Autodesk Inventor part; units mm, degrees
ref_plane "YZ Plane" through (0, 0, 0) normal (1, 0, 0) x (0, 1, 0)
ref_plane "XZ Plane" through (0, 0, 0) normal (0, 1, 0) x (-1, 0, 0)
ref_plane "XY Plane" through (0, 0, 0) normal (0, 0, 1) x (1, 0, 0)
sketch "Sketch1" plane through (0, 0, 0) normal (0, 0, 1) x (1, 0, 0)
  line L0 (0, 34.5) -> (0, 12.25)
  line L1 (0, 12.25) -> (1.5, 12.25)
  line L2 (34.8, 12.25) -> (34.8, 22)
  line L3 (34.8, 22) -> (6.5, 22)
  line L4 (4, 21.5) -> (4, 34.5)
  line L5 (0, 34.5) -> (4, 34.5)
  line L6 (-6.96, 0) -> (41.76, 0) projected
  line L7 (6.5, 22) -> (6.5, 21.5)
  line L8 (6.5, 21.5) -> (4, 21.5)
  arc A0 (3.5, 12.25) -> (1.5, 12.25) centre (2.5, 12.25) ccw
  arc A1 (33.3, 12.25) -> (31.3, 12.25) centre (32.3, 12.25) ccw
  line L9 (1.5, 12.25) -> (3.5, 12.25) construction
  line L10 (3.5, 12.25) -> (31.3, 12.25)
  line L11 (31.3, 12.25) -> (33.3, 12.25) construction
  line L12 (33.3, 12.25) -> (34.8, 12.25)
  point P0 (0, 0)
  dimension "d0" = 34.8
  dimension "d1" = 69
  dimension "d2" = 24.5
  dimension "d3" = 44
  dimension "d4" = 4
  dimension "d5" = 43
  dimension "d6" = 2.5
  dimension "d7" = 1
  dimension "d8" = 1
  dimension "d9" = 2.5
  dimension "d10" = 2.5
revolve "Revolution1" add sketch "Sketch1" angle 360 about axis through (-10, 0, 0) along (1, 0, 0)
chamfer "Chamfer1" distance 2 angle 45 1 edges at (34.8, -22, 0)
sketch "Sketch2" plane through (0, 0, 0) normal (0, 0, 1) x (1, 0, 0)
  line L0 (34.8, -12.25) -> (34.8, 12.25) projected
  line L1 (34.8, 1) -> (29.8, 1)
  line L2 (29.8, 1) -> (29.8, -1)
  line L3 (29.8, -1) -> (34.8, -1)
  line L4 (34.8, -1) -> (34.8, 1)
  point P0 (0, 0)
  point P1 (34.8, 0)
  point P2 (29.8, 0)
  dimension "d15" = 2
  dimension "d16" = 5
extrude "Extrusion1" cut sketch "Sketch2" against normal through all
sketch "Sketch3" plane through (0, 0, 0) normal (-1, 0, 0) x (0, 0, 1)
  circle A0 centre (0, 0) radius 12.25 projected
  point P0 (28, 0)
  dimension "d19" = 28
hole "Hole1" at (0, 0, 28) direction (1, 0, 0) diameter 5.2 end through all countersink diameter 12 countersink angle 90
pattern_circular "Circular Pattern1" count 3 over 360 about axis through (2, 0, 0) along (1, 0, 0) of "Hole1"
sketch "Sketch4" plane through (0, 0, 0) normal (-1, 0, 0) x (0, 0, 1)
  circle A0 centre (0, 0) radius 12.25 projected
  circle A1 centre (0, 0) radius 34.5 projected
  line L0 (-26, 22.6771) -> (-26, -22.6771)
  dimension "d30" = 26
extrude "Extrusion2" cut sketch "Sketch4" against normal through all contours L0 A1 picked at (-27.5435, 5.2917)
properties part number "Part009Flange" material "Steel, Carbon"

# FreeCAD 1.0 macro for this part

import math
import FreeCAD as App
import Part
import Sketcher


def edges_at(feature, points):
    """Names of the edges that pass closest to the given points."""
    edges = feature.Shape.Edges
    near = lambda p: min(range(len(edges)), key=lambda i: edges[i].distToShape(Part.Vertex(*p))[0])
    return sorted({f"Edge{near(p) + 1}" for p in points})


def add_polygon(sketch, points):
    """Adds a closed chain of lines whose ends are joined by coincident constraints."""
    first, n = sketch.GeometryCount, len(points)
    for a, b in zip(points, points[1:] + points[:1]):
        sketch.addGeometry(Part.LineSegment(App.Vector(*a, 0), App.Vector(*b, 0)), False)
    for i in range(n):
        sketch.addConstraint(Sketcher.Constraint("Coincident", first + i, 2, first + (i + 1) % n, 1))

doc = App.newDocument("Part")
body = doc.addObject("PartDesign::Body", "Body")

# Sketch on XY plane
sketch1 = body.newObject("Sketcher::SketchObject", "Sketch")
sketch1.AttachmentSupport = (doc.getObject("XY_Plane"), [""])
sketch1.MapMode = "FlatFace"
sketch1.addGeometry([
    Part.LineSegment(App.Vector(4, 34.5, 0), App.Vector(0, 34.5, 0)),  # 0
    Part.LineSegment(App.Vector(0, 34.5, 0), App.Vector(0, 12.2, 0)),  # 1
    Part.LineSegment(App.Vector(0, 12.2, 0), App.Vector(1.5, 12.2, 0)),  # 2
    Part.ArcOfCircle(Part.Circle(App.Vector(2.5, 12.2, 0), App.Vector(0, 0, 1), 1), math.radians(0), math.radians(180)),  # 3
    Part.LineSegment(App.Vector(3.5, 12.2, 0), App.Vector(31.3, 12.2, 0)),  # 4
    Part.ArcOfCircle(Part.Circle(App.Vector(32.3, 12.2, 0), App.Vector(0, 0, 1), 1), math.radians(0), math.radians(180)),  # 5
    Part.LineSegment(App.Vector(33.3, 12.2, 0), App.Vector(34.8, 12.2, 0)),  # 6
    Part.LineSegment(App.Vector(34.8, 12.2, 0), App.Vector(34.8, 22, 0)),  # 7
    Part.LineSegment(App.Vector(34.8, 22, 0), App.Vector(6.5, 22, 0)),  # 8
    Part.LineSegment(App.Vector(6.5, 22, 0), App.Vector(6.5, 21.5, 0)),  # 9
    Part.LineSegment(App.Vector(6.5, 21.5, 0), App.Vector(4, 21.5, 0)),  # 10
    Part.LineSegment(App.Vector(4, 21.5, 0), App.Vector(4, 34.5, 0)),  # 11
], False)
sketch1.addConstraint([
    Sketcher.Constraint("Coincident", 0, 2, 1, 1),
    Sketcher.Constraint("Coincident", 1, 2, 2, 1),
    Sketcher.Constraint("Coincident", 2, 2, 3, 2),
    Sketcher.Constraint("Coincident", 3, 1, 4, 1),
    Sketcher.Constraint("Coincident", 4, 2, 5, 2),
    Sketcher.Constraint("Coincident", 5, 1, 6, 1),
    Sketcher.Constraint("Coincident", 6, 2, 7, 1),
    Sketcher.Constraint("Coincident", 7, 2, 8, 1),
    Sketcher.Constraint("Coincident", 8, 2, 9, 1),
    Sketcher.Constraint("Coincident", 9, 2, 10, 1),
    Sketcher.Constraint("Coincident", 10, 2, 11, 1),
    Sketcher.Constraint("Coincident", 11, 2, 0, 1),
    Sketcher.Constraint("Horizontal", 0),
    Sketcher.Constraint("Vertical", 1),
    Sketcher.Constraint("Horizontal", 2),
    Sketcher.Constraint("Horizontal", 4),
    Sketcher.Constraint("Horizontal", 6),
    Sketcher.Constraint("Vertical", 7),
    Sketcher.Constraint("Horizontal", 8),
    Sketcher.Constraint("Vertical", 9),
    Sketcher.Constraint("Horizontal", 10),
    Sketcher.Constraint("Vertical", 11),
    Sketcher.Constraint("Equal", 3, 5),
    Sketcher.Constraint("PointOnObject", 0, 2, -2),
    Sketcher.Constraint("Horizontal", 3, 3, 5, 3),
    Sketcher.Constraint("Horizontal", 5, 3, 1, 2),
    Sketcher.Constraint("Horizontal", 2, 2, 3, 1),
    Sketcher.Constraint("Horizontal", 4, 2, 5, 1),
    Sketcher.Constraint("Equal", 2, 6),
    Sketcher.Constraint("Radius", 3, 1.0),
    Sketcher.Constraint("DistanceX", 0, 2, 0, 1, 4.0),
    Sketcher.Constraint("DistanceX", 10, 2, 10, 1, 2.5),
    Sketcher.Constraint("DistanceX", 3, 3, 8, 2, 4.0),
    Sketcher.Constraint("DistanceX", -1, 1, 6, 2, 34.8),
    Sketcher.Constraint("DistanceY", 11, 1, 11, 2, 13.0),
    Sketcher.Constraint("DistanceY", 9, 2, 9, 1, 0.5),
    Sketcher.Constraint("DistanceY", -1, 1, 7, 2, 22.0),
    Sketcher.Constraint("DistanceY", 1, 2, 1, 1, 22.25),
])
revolution = body.newObject("PartDesign::Revolution", "Revolution")
revolution.Profile = sketch1
revolution.ReferenceAxis = (sketch1, ["H_Axis"])
revolution.Angle = 360
doc.recompute()

chamfer = body.newObject("PartDesign::Chamfer", "Chamfer")
chamfer.Base = (revolution, edges_at(revolution, [(34.8, -22, 0)]))
chamfer.Size = 2

# Sketch on XY plane
sketch2 = body.newObject("Sketcher::SketchObject", "Sketch001")
sketch2.AttachmentSupport = (doc.getObject("XY_Plane"), [""])
sketch2.MapMode = "FlatFace"
add_polygon(sketch2, [(29.8, -1), (34.8, -1), (34.8, 1), (29.8, 1)])  # lines 0-3
sketch2.addConstraint([
    Sketcher.Constraint("Horizontal", 0),
    Sketcher.Constraint("Vertical", 1),
    Sketcher.Constraint("Horizontal", 2),
    Sketcher.Constraint("Vertical", 3),
    Sketcher.Constraint("DistanceX", 0, 1, 0, 2, 5.0),
    Sketcher.Constraint("DistanceY", 1, 1, 1, 2, 2.0),
    Sketcher.Constraint("DistanceY", 0, 2, -1, 1, 1.0),
    Sketcher.Constraint("DistanceX", -1, 1, 0, 2, 34.8),
])
pocket1 = body.newObject("PartDesign::Pocket", "Pocket")
pocket1.Profile = sketch2
pocket1.Type = "ThroughAll"

# Sketch on YZ plane
sketch3 = body.newObject("Sketcher::SketchObject", "Sketch002")
sketch3.AttachmentSupport = (doc.getObject("YZ_Plane"), [""])
sketch3.MapMode = "FlatFace"
sketch3.addGeometry(Part.Circle(App.Vector(0, 28, 0), App.Vector(0, 0, 1), 2.6), False)
sketch3.addConstraint([
    Sketcher.Constraint("PointOnObject", 0, 3, -2),
    Sketcher.Constraint("Diameter", 0, 5.2),
    Sketcher.Constraint("DistanceY", -1, 1, 0, 3, 28.0),
])
doc.recompute()
hole = body.newObject("PartDesign::Hole", "Hole")
hole.Profile = sketch3
hole.ThreadType = "None"
hole.Diameter = 5.2
hole.DepthType = "ThroughAll"
hole.HoleCutType = "Countersink"
hole.HoleCutDiameter = 12
hole.HoleCutCountersinkAngle = 90
hole.Reversed = True
doc.recompute()

polarpattern = body.newObject("PartDesign::PolarPattern", "PolarPattern")
polarpattern.Originals = [hole]
polarpattern.Axis = (doc.getObject("X_Axis"), [""])
polarpattern.Angle = 360
polarpattern.Occurrences = 3
body.Tip = polarpattern

# Sketch on YZ plane
sketch4 = body.newObject("Sketcher::SketchObject", "Sketch003")
sketch4.AttachmentSupport = (doc.getObject("YZ_Plane"), [""])
sketch4.MapMode = "FlatFace"
sketch4.addGeometry([
    Part.LineSegment(App.Vector(-23, -26, 0), App.Vector(23, -26, 0)),
    Part.ArcOfCircle(Part.Circle(App.Vector(0, 0, 0), App.Vector(0, 0, 1), 34), math.radians(-131), math.radians(-49)),
], False)
sketch4.addConstraint([
    Sketcher.Constraint("Coincident", 0, 1, 1, 1),
    Sketcher.Constraint("Coincident", 1, 2, 0, 2),
    Sketcher.Constraint("Horizontal", 0),
    Sketcher.Constraint("Coincident", 1, 3, -1, 1),
    Sketcher.Constraint("DistanceY", 0, 1, -1, 1, 26.0),
    Sketcher.Constraint("Radius", 1, 34.5),
])
pocket2 = body.newObject("PartDesign::Pocket", "Pocket001")
pocket2.Profile = sketch4
pocket2.Type = "ThroughAll"
pocket2.Reversed = True

doc.recompute()
